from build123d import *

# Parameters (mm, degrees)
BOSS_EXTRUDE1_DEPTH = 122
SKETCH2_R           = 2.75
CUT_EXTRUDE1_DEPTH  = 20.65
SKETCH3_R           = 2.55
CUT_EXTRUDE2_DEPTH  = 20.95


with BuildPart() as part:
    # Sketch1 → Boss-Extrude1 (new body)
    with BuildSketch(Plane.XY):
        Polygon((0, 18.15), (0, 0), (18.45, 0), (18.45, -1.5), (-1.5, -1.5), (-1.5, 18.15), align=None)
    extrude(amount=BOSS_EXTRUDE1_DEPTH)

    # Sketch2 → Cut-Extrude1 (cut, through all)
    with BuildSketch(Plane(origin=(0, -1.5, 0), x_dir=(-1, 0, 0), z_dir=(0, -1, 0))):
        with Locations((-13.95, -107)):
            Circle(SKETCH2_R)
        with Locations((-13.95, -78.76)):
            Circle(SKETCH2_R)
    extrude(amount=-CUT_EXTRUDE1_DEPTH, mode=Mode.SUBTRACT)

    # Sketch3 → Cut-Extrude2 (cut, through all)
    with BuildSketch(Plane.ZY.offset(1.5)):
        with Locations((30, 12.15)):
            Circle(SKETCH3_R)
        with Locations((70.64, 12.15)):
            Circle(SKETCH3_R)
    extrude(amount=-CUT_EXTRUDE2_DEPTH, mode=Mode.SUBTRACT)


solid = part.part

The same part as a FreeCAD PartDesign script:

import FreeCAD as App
import Part
import Sketcher
from FreeCAD import Vector
Q = App.Units.Quantity

doc = App.newDocument("Part")
body = doc.addObject("PartDesign::Body", "Body")

# Sketch on XY plane
sketch1 = body.newObject("Sketcher::SketchObject", "Sketch")
sketch1.AttachmentSupport = (doc.getObject("XY_Plane"), [""])
sketch1.MapMode = "FlatFace"
sketch1.addGeometry([
    Part.LineSegment(Vector(0, 0, 0), Vector(0, 18.1, 0)),  # 0
    Part.LineSegment(Vector(0, 18.1, 0), Vector(-1.5, 18.1, 0)),  # 1
    Part.LineSegment(Vector(-1.5, 18.1, 0), Vector(-1.5, -1.5, 0)),  # 2
    Part.LineSegment(Vector(-1.5, -1.5, 0), Vector(18.4, -1.5, 0)),  # 3
    Part.LineSegment(Vector(18.4, -1.5, 0), Vector(18.4, 0, 0)),  # 4
    Part.LineSegment(Vector(18.4, 0, 0), Vector(0, 0, 0)),  # 5
], False)
sketch1.addConstraint([
    Sketcher.Constraint("Coincident", 0, 2, 1, 1),
    Sketcher.Constraint("Coincident", 1, 2, 2, 1),
    Sketcher.Constraint("Coincident", 2, 2, 3, 1),
    Sketcher.Constraint("Coincident", 3, 2, 4, 1),
    Sketcher.Constraint("Coincident", 4, 2, 5, 1),
    Sketcher.Constraint("Coincident", 5, 2, 0, 1),
    Sketcher.Constraint("Vertical", 0),
    Sketcher.Constraint("Horizontal", 1),
    Sketcher.Constraint("Vertical", 2),
    Sketcher.Constraint("Horizontal", 3),
    Sketcher.Constraint("Vertical", 4),
    Sketcher.Constraint("Horizontal", 5),
    Sketcher.Constraint("Coincident", 5, 2, -1, 1),
    Sketcher.Constraint("Equal", 1, 4),
    Sketcher.Constraint("DistanceX", 1, 2, 1, 1, Q("1.5 mm")),
    Sketcher.Constraint("DistanceX", 3, 1, 3, 2, Q("19.95 mm")),
    Sketcher.Constraint("DistanceY", 0, 1, 0, 2, Q("18.15 mm")),
])
pad1 = body.newObject("PartDesign::Pad", "Pad")
pad1.Profile = sketch1
pad1.Length = 122

# Sketch on XZ plane
sketch2 = body.newObject("Sketcher::SketchObject", "Sketch001")
sketch2.AttachmentSupport = (doc.getObject("XZ_Plane"), [""])
sketch2.MapMode = "FlatFace"
sketch2.AttachmentOffset = App.Placement(Vector(0, 0, 1.5), App.Rotation())
sketch2.addGeometry([
    Part.Circle(Vector(13.9, 107, 0), Vector(0, 0, 1), 2.8),
    Part.Circle(Vector(13.9, 78.8, 0), Vector(0, 0, 1), 2.8),
], False)
sketch2.addConstraint([
    Sketcher.Constraint("Equal", 0, 1),
    Sketcher.Constraint("Vertical", 0, 3, 1, 3),
    Sketcher.Constraint("Diameter", 0, Q("5.5 mm")),
    Sketcher.Constraint("DistanceY", -1, 1, 0, 3, Q("107 mm")),
    Sketcher.Constraint("DistanceX", -1, 1, 0, 3, Q("13.95 mm")),
    Sketcher.Constraint("DistanceY", -1, 1, 1, 3, Q("78.76 mm")),
])
pocket1 = body.newObject("PartDesign::Pocket", "Pocket")
pocket1.Profile = sketch2
pocket1.Type = "ThroughAll"

# Sketch on YZ plane
sketch3 = body.newObject("Sketcher::SketchObject", "Sketch002")
sketch3.AttachmentSupport = (doc.getObject("YZ_Plane"), [""])
sketch3.MapMode = "FlatFace"
sketch3.AttachmentOffset = App.Placement(Vector(0, 0, -1.5), App.Rotation())
sketch3.addGeometry([
    Part.Circle(Vector(12.2, 30, 0), Vector(0, 0, 1), 2.5),
    Part.Circle(Vector(12.2, 70.6, 0), Vector(0, 0, 1), 2.5),
], False)
sketch3.addConstraint([
    Sketcher.Constraint("Equal", 0, 1),
    Sketcher.Constraint("Vertical", 0, 3, 1, 3),
    Sketcher.Constraint("Diameter", 0, Q("5.1 mm")),
    Sketcher.Constraint("DistanceY", -1, 1, 0, 3, Q("30 mm")),
    Sketcher.Constraint("DistanceX", -1, 1, 0, 3, Q("12.15 mm")),
    Sketcher.Constraint("DistanceY", -1, 1, 1, 3, Q("70.64 mm")),
])
pocket2 = body.newObject("PartDesign::Pocket", "Pocket001")
pocket2.Profile = sketch3
pocket2.Type = "ThroughAll"
pocket2.Reversed = True

doc.recompute()
